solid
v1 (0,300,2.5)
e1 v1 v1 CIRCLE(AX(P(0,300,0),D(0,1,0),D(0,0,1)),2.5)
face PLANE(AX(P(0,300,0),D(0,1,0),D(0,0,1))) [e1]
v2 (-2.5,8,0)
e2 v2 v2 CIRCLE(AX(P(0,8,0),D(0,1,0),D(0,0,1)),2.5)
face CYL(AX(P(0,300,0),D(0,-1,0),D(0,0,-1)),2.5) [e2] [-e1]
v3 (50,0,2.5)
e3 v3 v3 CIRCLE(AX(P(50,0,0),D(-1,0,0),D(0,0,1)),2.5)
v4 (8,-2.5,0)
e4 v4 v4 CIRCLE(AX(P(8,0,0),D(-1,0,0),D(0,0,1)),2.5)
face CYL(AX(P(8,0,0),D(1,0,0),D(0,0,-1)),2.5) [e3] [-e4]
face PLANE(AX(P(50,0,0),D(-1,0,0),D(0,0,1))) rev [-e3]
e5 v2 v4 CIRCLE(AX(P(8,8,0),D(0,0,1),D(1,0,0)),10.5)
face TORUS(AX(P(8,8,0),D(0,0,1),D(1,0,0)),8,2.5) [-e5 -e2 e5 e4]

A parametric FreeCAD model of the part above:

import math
import FreeCAD as App
import Part
import Sketcher

V = App.Vector

doc = App.newDocument("Part")
body = doc.addObject("PartDesign::Body", "Body")

# Sketch on XZ plane
sketch1 = doc.addObject("Sketcher::SketchObject", "Sketch")
body.addObject(sketch1)
sketch1.AttachmentSupport = (doc.XZ_Plane, [""])
sketch1.MapMode = "FlatFace"
sketch1.AttachmentOffset = App.Placement(V(0, 0, -300), App.Rotation())
sketch1.addGeometry(Part.Circle(V(0, 0, 0), V(0, 0, 1), 2.5), False)
sketch1.addConstraint(Sketcher.Constraint("Coincident", 0, 3, -1, 1))
sketch1.addConstraint(Sketcher.Constraint("Diameter", 0, 5.0))

# Sketch on XY plane
sketch2 = doc.addObject("Sketcher::SketchObject", "Sketch001")
body.addObject(sketch2)
sketch2.AttachmentSupport = (doc.XY_Plane, [""])
sketch2.MapMode = "FlatFace"
sketch2.addGeometry(Part.LineSegment(V(0, 300, 0), V(0, 8, 0)), False)
sketch2.addGeometry(Part.ArcOfCircle(Part.Circle(V(8, 8, 0), V(0, 0, 1), 8), math.radians(-180), math.radians(-90)), False)
sketch2.addGeometry(Part.LineSegment(V(8, 0, 0), V(50, 0, 0)), False)
sketch2.addConstraint(Sketcher.Constraint("Tangent", 0, 2, 1, 1))
sketch2.addConstraint(Sketcher.Constraint("Tangent", 1, 2, 2, 1))
sketch2.addConstraint(Sketcher.Constraint("Vertical", 0))
sketch2.addConstraint(Sketcher.Constraint("Horizontal", 2))
sketch2.addConstraint(Sketcher.Constraint("PointOnObject", 0, 1, -2))
sketch2.addConstraint(Sketcher.Constraint("PointOnObject", 1, 2, -1))
sketch2.addConstraint(Sketcher.Constraint("Radius", 1, 8.0))
sketch2.addConstraint(Sketcher.Constraint("DistanceX", 2, 1, 2, 2, 42.0))
sketch2.addConstraint(Sketcher.Constraint("DistanceY", 0, 2, 0, 1, 292.0))
doc.recompute()

additivepipe = doc.addObject("PartDesign::AdditivePipe", "AdditivePipe")
body.addObject(additivepipe)
additivepipe.Profile = sketch1
additivepipe.Spine = (sketch2, ["Edge1", "Edge2", "Edge3"])

doc.recompute()
